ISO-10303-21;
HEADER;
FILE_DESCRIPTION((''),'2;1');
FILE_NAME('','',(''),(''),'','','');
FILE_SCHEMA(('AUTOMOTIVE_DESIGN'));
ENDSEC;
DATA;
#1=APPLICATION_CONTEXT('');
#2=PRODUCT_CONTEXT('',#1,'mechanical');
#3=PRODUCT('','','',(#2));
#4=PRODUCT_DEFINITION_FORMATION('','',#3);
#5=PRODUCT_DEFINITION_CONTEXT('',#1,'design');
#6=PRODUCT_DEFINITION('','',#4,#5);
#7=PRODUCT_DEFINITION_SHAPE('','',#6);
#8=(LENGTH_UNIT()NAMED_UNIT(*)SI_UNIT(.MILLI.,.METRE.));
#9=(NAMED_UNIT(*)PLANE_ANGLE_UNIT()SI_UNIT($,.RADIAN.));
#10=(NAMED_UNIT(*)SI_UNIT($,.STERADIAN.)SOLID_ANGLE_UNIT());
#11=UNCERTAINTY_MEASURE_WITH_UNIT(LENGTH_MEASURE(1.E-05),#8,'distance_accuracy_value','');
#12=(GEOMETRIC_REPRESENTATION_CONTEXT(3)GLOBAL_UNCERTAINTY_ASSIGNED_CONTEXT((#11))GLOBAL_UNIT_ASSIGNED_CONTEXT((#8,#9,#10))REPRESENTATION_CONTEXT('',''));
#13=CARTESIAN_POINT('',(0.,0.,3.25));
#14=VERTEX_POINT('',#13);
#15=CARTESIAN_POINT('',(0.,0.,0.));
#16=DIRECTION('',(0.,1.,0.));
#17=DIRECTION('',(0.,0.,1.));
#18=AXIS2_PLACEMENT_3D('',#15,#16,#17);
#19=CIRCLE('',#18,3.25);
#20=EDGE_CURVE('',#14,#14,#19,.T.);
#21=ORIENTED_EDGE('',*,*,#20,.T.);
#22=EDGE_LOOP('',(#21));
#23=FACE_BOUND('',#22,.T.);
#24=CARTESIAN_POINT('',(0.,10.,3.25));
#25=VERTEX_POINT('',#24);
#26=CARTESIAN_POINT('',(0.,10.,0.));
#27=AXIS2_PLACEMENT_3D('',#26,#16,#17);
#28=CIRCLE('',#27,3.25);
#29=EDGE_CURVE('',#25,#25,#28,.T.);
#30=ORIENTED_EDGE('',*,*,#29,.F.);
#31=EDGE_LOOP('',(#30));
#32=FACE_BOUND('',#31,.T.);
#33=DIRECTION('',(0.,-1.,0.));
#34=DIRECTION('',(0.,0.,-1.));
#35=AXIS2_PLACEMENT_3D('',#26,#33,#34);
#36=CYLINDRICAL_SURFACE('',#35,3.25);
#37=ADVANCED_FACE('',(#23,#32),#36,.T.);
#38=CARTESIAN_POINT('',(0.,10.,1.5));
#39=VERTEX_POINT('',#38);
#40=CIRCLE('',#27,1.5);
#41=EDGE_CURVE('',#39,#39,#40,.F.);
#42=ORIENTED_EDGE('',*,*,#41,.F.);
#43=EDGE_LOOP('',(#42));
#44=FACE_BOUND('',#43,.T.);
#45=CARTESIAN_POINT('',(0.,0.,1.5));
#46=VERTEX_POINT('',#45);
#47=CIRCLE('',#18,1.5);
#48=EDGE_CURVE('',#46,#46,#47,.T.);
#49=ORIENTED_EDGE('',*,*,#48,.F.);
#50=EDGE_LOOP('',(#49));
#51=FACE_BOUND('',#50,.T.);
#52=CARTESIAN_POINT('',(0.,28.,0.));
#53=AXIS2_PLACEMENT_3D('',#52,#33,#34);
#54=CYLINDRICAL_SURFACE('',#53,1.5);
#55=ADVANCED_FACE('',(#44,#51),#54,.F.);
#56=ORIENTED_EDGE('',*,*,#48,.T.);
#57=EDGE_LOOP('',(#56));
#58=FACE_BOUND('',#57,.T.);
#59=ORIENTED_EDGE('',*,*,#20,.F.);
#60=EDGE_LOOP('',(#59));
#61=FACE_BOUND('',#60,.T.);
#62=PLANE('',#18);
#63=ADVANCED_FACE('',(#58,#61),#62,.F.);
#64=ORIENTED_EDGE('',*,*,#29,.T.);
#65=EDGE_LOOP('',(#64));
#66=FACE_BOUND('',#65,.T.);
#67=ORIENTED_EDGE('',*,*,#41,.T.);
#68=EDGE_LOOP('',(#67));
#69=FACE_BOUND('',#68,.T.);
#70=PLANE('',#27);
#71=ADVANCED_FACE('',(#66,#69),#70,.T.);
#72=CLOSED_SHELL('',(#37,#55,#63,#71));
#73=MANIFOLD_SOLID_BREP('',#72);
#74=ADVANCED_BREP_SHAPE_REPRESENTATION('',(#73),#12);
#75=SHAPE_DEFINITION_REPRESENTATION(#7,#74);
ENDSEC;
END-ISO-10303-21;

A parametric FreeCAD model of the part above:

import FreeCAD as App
import Part
import Sketcher
from FreeCAD import Vector
Q = App.Units.Quantity

doc = App.newDocument("Part")
params = doc.addObject("Spreadsheet::Sheet", "Params")
for row, (alias, value) in enumerate([
    ("sketch1_diameter", "6.5 mm"),
    ("pad1_length", "10 mm"),
    ("sketch2_diameter", "3 mm"),
    ("pocket1_length", "28 mm"),
], start=1):
    params.set(f"A{row}", alias)
    params.set(f"B{row}", "=" + value)
    params.setAlias(f"B{row}", alias)

body = doc.addObject("PartDesign::Body", "Body")

sketch1 = body.newObject("Sketcher::SketchObject", "Sketch")
sketch1.AttachmentSupport = (doc.getObject("XZ_Plane"), [""])
sketch1.MapMode = "FlatFace"
sketch1.addGeometry(Part.Circle(Vector(0, 0, 0), Vector(0, 0, 1), 3.2), False)
sketch1.addConstraint([
    Sketcher.Constraint("Coincident", 0, 3, -1, 1),
    Sketcher.Constraint("Diameter", 0, Q("6.5 mm")),
])
sketch1.setExpression("Constraints[1]", "Params.sketch1_diameter")
pad1 = body.newObject("PartDesign::Pad", "Pad")
pad1.Profile = sketch1
pad1.setExpression("Length", "Params.pad1_length")
pad1.Reversed = True

sketch2 = body.newObject("Sketcher::SketchObject", "Sketch001")
sketch2.AttachmentSupport = (doc.getObject("XZ_Plane"), [""])
sketch2.MapMode = "FlatFace"
sketch2.addGeometry(Part.Circle(Vector(0, 0, 0), Vector(0, 0, 1), 1.5), False)
sketch2.addConstraint([
    Sketcher.Constraint("Coincident", 0, 3, -1, 1),
    Sketcher.Constraint("Diameter", 0, Q("3 mm")),
])
sketch2.setExpression("Constraints[1]", "Params.sketch2_diameter")
pocket1 = body.newObject("PartDesign::Pocket", "Pocket")
pocket1.Profile = sketch2
pocket1.setExpression("Length", "Params.pocket1_length")

doc.recompute()
